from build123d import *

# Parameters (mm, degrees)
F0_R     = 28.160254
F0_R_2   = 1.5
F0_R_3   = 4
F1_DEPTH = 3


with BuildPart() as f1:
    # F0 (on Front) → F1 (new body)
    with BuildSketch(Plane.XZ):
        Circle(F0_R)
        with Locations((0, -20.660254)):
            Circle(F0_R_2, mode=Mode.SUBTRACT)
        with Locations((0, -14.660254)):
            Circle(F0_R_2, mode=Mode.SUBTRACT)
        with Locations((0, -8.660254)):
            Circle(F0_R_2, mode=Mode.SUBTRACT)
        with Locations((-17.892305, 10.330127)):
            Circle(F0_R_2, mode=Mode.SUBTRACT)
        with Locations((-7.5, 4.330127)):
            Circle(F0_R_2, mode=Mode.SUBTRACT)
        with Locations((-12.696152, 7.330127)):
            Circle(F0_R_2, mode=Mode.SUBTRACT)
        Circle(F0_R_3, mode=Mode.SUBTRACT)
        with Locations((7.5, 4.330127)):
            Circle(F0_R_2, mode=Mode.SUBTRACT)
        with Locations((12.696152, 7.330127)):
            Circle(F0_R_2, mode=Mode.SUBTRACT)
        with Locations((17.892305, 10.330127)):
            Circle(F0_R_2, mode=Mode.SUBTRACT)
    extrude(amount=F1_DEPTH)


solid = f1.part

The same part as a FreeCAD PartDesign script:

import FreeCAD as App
import Part
import Sketcher

V = App.Vector
Q = App.Units.Quantity

doc = App.newDocument("Part")
body = doc.addObject("PartDesign::Body", "Body")

# Sketch on XZ plane
sketch1 = body.newObject("Sketcher::SketchObject", "Sketch")
sketch1.AttachmentSupport = (doc.getObject("XZ_Plane"), [""])
sketch1.MapMode = "FlatFace"
sketch1.addGeometry(Part.Circle(V(0, 0, 0), V(0, 0, 1), 28.2), False)
sketch1.addGeometry(Part.Circle(V(0, -20.7, 0), V(0, 0, 1), 1.5), False)
sketch1.addGeometry(Part.Circle(V(0, -14.7, 0), V(0, 0, 1), 1.5), False)
sketch1.addGeometry(Part.Circle(V(0, -8.7, 0), V(0, 0, 1), 1.5), False)
sketch1.addGeometry(Part.Circle(V(0, 0, 0), V(0, 0, 1), 4), False)
sketch1.addGeometry(Part.Circle(V(-12.7, 7.3, 0), V(0, 0, 1), 1.5), False)
sketch1.addGeometry(Part.Circle(V(-17.9, 10.3, 0), V(0, 0, 1), 1.5), False)
sketch1.addGeometry(Part.Circle(V(-7.5, 4.3, 0), V(0, 0, 1), 1.5), False)
sketch1.addGeometry(Part.Circle(V(7.5, 4.3, 0), V(0, 0, 1), 1.5), False)
sketch1.addGeometry(Part.Circle(V(12.7, 7.3, 0), V(0, 0, 1), 1.5), False)
sketch1.addGeometry(Part.Circle(V(17.9, 10.3, 0), V(0, 0, 1), 1.5), False)
sketch1.addConstraint(Sketcher.Constraint("Coincident", 0, 3, -1, 1))
sketch1.addConstraint(Sketcher.Constraint("Coincident", 4, 3, -1, 1))
sketch1.addConstraint(Sketcher.Constraint("Equal", 1, 2))
sketch1.addConstraint(Sketcher.Constraint("Equal", 2, 3))
sketch1.addConstraint(Sketcher.Constraint("Equal", 3, 5))
sketch1.addConstraint(Sketcher.Constraint("Equal", 5, 6))
sketch1.addConstraint(Sketcher.Constraint("Equal", 6, 7))
sketch1.addConstraint(Sketcher.Constraint("Equal", 7, 8))
sketch1.addConstraint(Sketcher.Constraint("Equal", 8, 9))
sketch1.addConstraint(Sketcher.Constraint("Equal", 9, 10))
sketch1.addConstraint(Sketcher.Constraint("Symmetric", 7, 3, 8, 3, -2))
sketch1.addConstraint(Sketcher.Constraint("Symmetric", 5, 3, 9, 3, -2))
sketch1.addConstraint(Sketcher.Constraint("Symmetric", 6, 3, 10, 3, -2))
sketch1.addConstraint(Sketcher.Constraint("PointOnObject", 1, 3, -2))
sketch1.addConstraint(Sketcher.Constraint("PointOnObject", 2, 3, -2))
sketch1.addConstraint(Sketcher.Constraint("PointOnObject", 3, 3, -2))
sketch1.addConstraint(Sketcher.Constraint("Diameter", 1, Q("3 mm")))
sketch1.addConstraint(Sketcher.Constraint("Diameter", 4, Q("8 mm")))
sketch1.addConstraint(Sketcher.Constraint("DistanceY", 1, 3, 2, 3, Q("6 mm")))
sketch1.addConstraint(Sketcher.Constraint("DistanceY", 2, 3, 3, 3, Q("6 mm")))
sketch1.addConstraint(Sketcher.Constraint("DistanceY", 5, 3, 6, 3, Q("3 mm")))
sketch1.addConstraint(Sketcher.Constraint("DistanceY", 7, 3, 5, 3, Q("3 mm")))
sketch1.addConstraint(Sketcher.Constraint("DistanceX", 7, 3, 8, 3, Q("15 mm")))
sketch1.addConstraint(Sketcher.Constraint("Diameter", 0, Q("56.320508 mm")))
sketch1.addConstraint(Sketcher.Constraint("DistanceY", 3, 3, 5, 3, Q("15.990381 mm")))
sketch1.addConstraint(Sketcher.Constraint("DistanceX", 5, 3, 7, 3, Q("5.196152 mm")))
sketch1.addConstraint(Sketcher.Constraint("DistanceY", 1, 3, -1, 1, Q("20.660254 mm")))
sketch1.addConstraint(Sketcher.Constraint("DistanceX", 6, 3, -1, 1, Q("17.892305 mm")))
pad1 = body.newObject("PartDesign::Pad", "Pad")
pad1.Profile = sketch1
pad1.Length = 3

doc.recompute()
